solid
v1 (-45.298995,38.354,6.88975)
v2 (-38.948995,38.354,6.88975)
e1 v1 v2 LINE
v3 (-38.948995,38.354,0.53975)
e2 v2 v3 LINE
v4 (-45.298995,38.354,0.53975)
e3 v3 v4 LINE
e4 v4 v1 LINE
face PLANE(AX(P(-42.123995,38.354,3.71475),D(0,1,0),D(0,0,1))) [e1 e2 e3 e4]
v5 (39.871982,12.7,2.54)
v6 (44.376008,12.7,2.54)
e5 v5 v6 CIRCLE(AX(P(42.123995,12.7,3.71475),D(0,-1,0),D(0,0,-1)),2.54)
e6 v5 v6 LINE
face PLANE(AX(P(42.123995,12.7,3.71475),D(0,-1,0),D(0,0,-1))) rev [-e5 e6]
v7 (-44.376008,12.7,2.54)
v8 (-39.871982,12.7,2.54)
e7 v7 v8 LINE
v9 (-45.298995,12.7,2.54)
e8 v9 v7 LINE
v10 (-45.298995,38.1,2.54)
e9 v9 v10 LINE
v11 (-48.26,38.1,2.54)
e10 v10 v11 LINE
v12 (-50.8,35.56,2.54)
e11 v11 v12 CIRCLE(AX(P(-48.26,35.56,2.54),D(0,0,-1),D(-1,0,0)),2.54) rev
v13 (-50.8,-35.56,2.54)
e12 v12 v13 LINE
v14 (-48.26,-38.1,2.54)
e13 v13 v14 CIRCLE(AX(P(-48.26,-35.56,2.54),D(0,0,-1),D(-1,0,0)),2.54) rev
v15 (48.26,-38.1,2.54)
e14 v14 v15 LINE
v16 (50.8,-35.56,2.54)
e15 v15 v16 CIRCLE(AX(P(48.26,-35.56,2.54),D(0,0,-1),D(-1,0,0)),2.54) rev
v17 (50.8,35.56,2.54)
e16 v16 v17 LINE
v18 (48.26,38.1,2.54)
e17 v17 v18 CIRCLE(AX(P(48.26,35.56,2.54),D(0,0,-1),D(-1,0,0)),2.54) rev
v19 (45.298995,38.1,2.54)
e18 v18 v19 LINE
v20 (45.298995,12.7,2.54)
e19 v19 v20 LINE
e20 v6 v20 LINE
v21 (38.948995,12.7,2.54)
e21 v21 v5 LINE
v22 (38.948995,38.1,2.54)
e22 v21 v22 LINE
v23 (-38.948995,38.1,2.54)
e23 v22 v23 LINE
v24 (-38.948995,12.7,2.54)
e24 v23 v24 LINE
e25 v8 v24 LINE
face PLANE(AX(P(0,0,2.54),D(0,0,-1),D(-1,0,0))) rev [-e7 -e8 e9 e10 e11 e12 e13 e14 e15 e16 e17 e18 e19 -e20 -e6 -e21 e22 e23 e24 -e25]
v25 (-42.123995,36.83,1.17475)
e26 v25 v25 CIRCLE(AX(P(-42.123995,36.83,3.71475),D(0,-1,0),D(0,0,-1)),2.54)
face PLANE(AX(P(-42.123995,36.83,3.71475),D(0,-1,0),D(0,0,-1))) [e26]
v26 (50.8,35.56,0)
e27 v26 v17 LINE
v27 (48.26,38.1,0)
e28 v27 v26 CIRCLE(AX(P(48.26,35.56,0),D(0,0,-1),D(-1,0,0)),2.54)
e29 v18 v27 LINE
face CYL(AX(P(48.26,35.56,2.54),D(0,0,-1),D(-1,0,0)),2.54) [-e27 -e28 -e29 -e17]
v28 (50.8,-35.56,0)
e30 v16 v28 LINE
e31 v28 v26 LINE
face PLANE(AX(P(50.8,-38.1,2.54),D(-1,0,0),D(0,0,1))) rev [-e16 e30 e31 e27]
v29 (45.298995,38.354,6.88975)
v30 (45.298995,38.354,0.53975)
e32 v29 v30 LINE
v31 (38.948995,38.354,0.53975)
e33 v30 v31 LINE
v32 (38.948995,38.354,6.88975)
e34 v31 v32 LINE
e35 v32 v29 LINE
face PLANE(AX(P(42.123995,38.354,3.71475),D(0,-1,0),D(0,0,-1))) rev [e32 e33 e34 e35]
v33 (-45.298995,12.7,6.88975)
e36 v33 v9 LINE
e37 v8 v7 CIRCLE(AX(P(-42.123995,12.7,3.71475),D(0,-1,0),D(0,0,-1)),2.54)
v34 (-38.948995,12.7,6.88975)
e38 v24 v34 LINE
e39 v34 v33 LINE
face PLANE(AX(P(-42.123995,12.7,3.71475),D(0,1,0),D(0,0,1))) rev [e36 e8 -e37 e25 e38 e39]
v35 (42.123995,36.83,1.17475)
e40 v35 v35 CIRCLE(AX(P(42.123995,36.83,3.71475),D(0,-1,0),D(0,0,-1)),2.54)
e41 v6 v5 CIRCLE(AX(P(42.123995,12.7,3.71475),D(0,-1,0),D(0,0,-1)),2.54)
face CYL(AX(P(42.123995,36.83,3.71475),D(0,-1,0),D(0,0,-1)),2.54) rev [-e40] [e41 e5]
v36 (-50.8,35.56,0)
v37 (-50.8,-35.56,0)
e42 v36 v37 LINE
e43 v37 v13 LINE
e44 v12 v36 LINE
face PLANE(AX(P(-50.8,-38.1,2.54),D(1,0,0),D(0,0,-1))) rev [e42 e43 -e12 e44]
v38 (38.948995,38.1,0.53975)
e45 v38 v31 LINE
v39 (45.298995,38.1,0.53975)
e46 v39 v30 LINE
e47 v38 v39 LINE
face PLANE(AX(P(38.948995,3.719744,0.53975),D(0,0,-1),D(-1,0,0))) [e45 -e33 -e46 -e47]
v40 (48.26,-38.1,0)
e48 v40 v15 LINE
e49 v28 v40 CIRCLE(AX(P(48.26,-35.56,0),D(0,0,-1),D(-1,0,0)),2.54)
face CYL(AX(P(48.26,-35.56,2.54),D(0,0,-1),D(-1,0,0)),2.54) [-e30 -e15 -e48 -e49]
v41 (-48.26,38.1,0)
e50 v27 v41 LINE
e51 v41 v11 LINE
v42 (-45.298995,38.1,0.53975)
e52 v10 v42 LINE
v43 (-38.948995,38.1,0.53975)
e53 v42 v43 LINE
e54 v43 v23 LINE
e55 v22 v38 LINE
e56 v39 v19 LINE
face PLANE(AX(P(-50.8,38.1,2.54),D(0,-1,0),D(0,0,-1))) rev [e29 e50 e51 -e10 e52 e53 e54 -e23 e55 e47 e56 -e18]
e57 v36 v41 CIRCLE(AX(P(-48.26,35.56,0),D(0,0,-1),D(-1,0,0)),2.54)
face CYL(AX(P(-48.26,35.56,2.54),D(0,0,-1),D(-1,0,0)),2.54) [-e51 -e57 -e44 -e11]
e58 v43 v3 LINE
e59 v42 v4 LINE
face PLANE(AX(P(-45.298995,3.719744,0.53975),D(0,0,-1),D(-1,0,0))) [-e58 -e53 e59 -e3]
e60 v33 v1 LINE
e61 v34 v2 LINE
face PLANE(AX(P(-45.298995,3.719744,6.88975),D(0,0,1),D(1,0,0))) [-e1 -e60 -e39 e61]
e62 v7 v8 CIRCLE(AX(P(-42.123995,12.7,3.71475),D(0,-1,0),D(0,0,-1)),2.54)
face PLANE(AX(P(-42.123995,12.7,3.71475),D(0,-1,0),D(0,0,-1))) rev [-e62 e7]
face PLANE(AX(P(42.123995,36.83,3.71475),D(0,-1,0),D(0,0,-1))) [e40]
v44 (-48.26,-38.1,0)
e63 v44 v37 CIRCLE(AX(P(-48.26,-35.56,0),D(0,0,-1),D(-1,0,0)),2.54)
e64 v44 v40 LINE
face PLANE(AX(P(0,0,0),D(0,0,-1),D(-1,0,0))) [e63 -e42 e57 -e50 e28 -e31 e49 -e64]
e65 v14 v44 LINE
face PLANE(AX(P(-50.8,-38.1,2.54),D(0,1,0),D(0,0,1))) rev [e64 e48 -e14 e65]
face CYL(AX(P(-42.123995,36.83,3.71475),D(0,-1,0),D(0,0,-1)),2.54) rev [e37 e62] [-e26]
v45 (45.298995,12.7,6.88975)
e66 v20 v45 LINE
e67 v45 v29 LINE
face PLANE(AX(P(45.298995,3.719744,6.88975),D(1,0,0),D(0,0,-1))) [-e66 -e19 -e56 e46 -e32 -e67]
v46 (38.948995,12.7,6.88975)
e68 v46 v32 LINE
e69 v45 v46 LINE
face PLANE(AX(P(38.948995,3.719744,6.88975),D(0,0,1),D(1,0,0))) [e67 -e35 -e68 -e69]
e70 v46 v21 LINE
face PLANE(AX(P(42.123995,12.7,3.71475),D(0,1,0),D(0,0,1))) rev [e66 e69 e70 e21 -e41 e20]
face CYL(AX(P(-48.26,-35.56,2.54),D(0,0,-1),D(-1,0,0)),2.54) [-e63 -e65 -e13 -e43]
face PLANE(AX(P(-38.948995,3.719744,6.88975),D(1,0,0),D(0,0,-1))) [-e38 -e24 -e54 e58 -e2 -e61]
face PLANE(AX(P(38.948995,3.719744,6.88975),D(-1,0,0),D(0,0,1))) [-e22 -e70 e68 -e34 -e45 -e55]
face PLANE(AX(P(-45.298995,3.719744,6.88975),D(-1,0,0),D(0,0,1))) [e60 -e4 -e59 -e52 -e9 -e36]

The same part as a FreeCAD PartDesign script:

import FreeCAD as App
import Part
import Sketcher
from FreeCAD import Vector
Q = App.Units.Quantity


def edges_at(feature, points):
    """Names of the edges that pass closest to the given points."""
    edges = feature.Shape.Edges
    near = lambda p: min(range(len(edges)), key=lambda i: edges[i].distToShape(Part.Vertex(*p))[0])
    return sorted({f"Edge{near(p) + 1}" for p in points})

doc = App.newDocument("Part")
body = doc.addObject("PartDesign::Body", "Body")

# Sketch on XY plane
sketch1 = doc.addObject("Sketcher::SketchObject", "Sketch")
body.addObject(sketch1)
sketch1.AttachmentSupport = (doc.XY_Plane, [""])
sketch1.MapMode = "FlatFace"
sketch1.addGeometry(Part.LineSegment(Vector(-51, 38, 0), Vector(-51, -38, 0)), False)
sketch1.addGeometry(Part.LineSegment(Vector(-51, -38, 0), Vector(51, -38, 0)), False)
sketch1.addGeometry(Part.LineSegment(Vector(51, -38, 0), Vector(51, 38, 0)), False)
sketch1.addGeometry(Part.LineSegment(Vector(51, 38, 0), Vector(-51, 38, 0)), False)
sketch1.addConstraint(Sketcher.Constraint("Coincident", 0, 2, 1, 1))
sketch1.addConstraint(Sketcher.Constraint("Coincident", 1, 2, 2, 1))
sketch1.addConstraint(Sketcher.Constraint("Coincident", 2, 2, 3, 1))
sketch1.addConstraint(Sketcher.Constraint("Coincident", 3, 2, 0, 1))
sketch1.addConstraint(Sketcher.Constraint("Vertical", 0))
sketch1.addConstraint(Sketcher.Constraint("Horizontal", 1))
sketch1.addConstraint(Sketcher.Constraint("Vertical", 2))
sketch1.addConstraint(Sketcher.Constraint("Horizontal", 3))
sketch1.addConstraint(Sketcher.Constraint("Symmetric", 0, 2, 2, 2, -1, 1))
sketch1.addConstraint(Sketcher.Constraint("DistanceX", 1, 1, 1, 2, Q("4 in")))
sketch1.addConstraint(Sketcher.Constraint("DistanceY", 0, 2, 0, 1, Q("3 in")))
pad1 = doc.addObject("PartDesign::Pad", "Pad")
body.addObject(pad1)
pad1.Profile = sketch1
pad1.Length = Q("0.1 in")

# Sketch on XZ plane
sketch2 = doc.addObject("Sketcher::SketchObject", "Sketch001")
body.addObject(sketch2)
sketch2.AttachmentSupport = (doc.XZ_Plane, [""])
sketch2.MapMode = "FlatFace"
sketch2.AttachmentOffset = App.Placement(Vector(0, 0, -1.5 * 25.4), App.Rotation())
sketch2.addGeometry(Part.Circle(Vector(-42.1, 3.7, 0), Vector(0, 0, 1), 1.6), False)
sketch2.addGeometry(Part.Circle(Vector(-42.1, 3.7, 0), Vector(0, 0, 1), 1.3), False)
sketch2.addGeometry(Part.Circle(Vector(42.1, 3.7, 0), Vector(0, 0, 1), 1.6), False)
sketch2.addGeometry(Part.Circle(Vector(42.1, 3.7, 0), Vector(0, 0, 1), 1.3), False)
sketch2.addConstraint(Sketcher.Constraint("Coincident", 1, 3, 0, 3))
sketch2.addConstraint(Sketcher.Constraint("Coincident", 3, 3, 2, 3))
sketch2.addConstraint(Sketcher.Constraint("Equal", 0, 2))
sketch2.addConstraint(Sketcher.Constraint("Equal", 1, 3))
sketch2.addConstraint(Sketcher.Constraint("Symmetric", 0, 3, 2, 3, -2))
sketch2.addConstraint(Sketcher.Constraint("Diameter", 0, Q("0.125 in")))
sketch2.addConstraint(Sketcher.Constraint("Diameter", 1, Q("0.105 in")))
sketch2.addConstraint(Sketcher.Constraint("DistanceY", -1, 1, 0, 3, Q("3.71475 mm")))
sketch2.addConstraint(Sketcher.Constraint("DistanceX", 0, 3, 2, 3, Q("84.24799 mm")))
pad2 = doc.addObject("PartDesign::Pad", "Pad001")
body.addObject(pad2)
pad2.Profile = sketch2
pad2.Length = Q("1 in")

# Sketch on XZ plane
sketch3 = doc.addObject("Sketcher::SketchObject", "Sketch002")
body.addObject(sketch3)
sketch3.AttachmentSupport = (doc.XZ_Plane, [""])
sketch3.MapMode = "FlatFace"
sketch3.AttachmentOffset = App.Placement(Vector(0, 0, -1.51 * 25.4), App.Rotation())
sketch3.addGeometry(Part.Circle(Vector(-42.1, 3.7, 0), Vector(0, 0, 1), 1.6), False)
sketch3.addGeometry(Part.Circle(Vector(42.1, 3.7, 0), Vector(0, 0, 1), 1.6), False)
sketch3.addConstraint(Sketcher.Constraint("Equal", 0, 1))
sketch3.addConstraint(Sketcher.Constraint("Symmetric", 0, 3, 1, 3, -2))
sketch3.addConstraint(Sketcher.Constraint("Diameter", 0, Q("0.125 in")))
sketch3.addConstraint(Sketcher.Constraint("DistanceY", -1, 1, 0, 3, Q("3.71475 mm")))
sketch3.addConstraint(Sketcher.Constraint("DistanceX", 0, 3, 1, 3, Q("84.24799 mm")))
pad3 = doc.addObject("PartDesign::Pad", "Pad002")
body.addObject(pad3)
pad3.Profile = sketch3
pad3.Length = Q("0.01 in")
doc.recompute()

fillet = doc.addObject("PartDesign::Fillet", "Fillet")
body.addObject(fillet)
fillet.Base = (pad3, edges_at(pad3, [
    (50.8, -38.1, 1.27),
    (-50.8, -38.1, 1.27),
    (-50.8, 38.1, 1.27),
    (50.8, 38.1, 1.27),
]))
fillet.Radius = Q("0.1 in")

# Sketch on XZ plane
sketch4 = doc.addObject("Sketcher::SketchObject", "Sketch003")
body.addObject(sketch4)
sketch4.AttachmentSupport = (doc.XZ_Plane, [""])
sketch4.MapMode = "FlatFace"
sketch4.AttachmentOffset = App.Placement(Vector(0, 0, -0.5 * 25.4), App.Rotation())
sketch4.addGeometry(Part.LineSegment(Vector(-45, 1, 0), Vector(-45, 7, 0)), False)
sketch4.addGeometry(Part.LineSegment(Vector(-45, 7, 0), Vector(-39, 7, 0)), False)
sketch4.addGeometry(Part.LineSegment(Vector(-39, 7, 0), Vector(-39, 1, 0)), False)
sketch4.addGeometry(Part.LineSegment(Vector(-39, 1, 0), Vector(-45, 1, 0)), False)
sketch4.addGeometry(Part.LineSegment(Vector(39, 1, 0), Vector(39, 7, 0)), False)
sketch4.addGeometry(Part.LineSegment(Vector(39, 7, 0), Vector(45, 7, 0)), False)
sketch4.addGeometry(Part.LineSegment(Vector(45, 7, 0), Vector(45, 1, 0)), False)
sketch4.addGeometry(Part.LineSegment(Vector(45, 1, 0), Vector(39, 1, 0)), False)
sketch4.addConstraint(Sketcher.Constraint("Coincident", 0, 2, 1, 1))
sketch4.addConstraint(Sketcher.Constraint("Coincident", 1, 2, 2, 1))
sketch4.addConstraint(Sketcher.Constraint("Coincident", 2, 2, 3, 1))
sketch4.addConstraint(Sketcher.Constraint("Coincident", 3, 2, 0, 1))
sketch4.addConstraint(Sketcher.Constraint("Coincident", 4, 2, 5, 1))
sketch4.addConstraint(Sketcher.Constraint("Coincident", 5, 2, 6, 1))
sketch4.addConstraint(Sketcher.Constraint("Coincident", 6, 2, 7, 1))
sketch4.addConstraint(Sketcher.Constraint("Coincident", 7, 2, 4, 1))
sketch4.addConstraint(Sketcher.Constraint("Vertical", 0))
sketch4.addConstraint(Sketcher.Constraint("Horizontal", 1))
sketch4.addConstraint(Sketcher.Constraint("Vertical", 2))
sketch4.addConstraint(Sketcher.Constraint("Horizontal", 3))
sketch4.addConstraint(Sketcher.Constraint("Vertical", 4))
sketch4.addConstraint(Sketcher.Constraint("Horizontal", 5))
sketch4.addConstraint(Sketcher.Constraint("Vertical", 6))
sketch4.addConstraint(Sketcher.Constraint("Horizontal", 7))
sketch4.addConstraint(Sketcher.Constraint("Symmetric", 1, 2, 4, 2, -2))
sketch4.addConstraint(Sketcher.Constraint("Symmetric", 3, 2, 6, 2, -2))
sketch4.addConstraint(Sketcher.Constraint("Equal", 7, 0))
sketch4.addConstraint(Sketcher.Constraint("DistanceX", 1, 1, 1, 2, Q("0.25 in")))
sketch4.addConstraint(Sketcher.Constraint("DistanceY", -1, 1, 0, 2, Q("6.88975 mm")))
sketch4.addConstraint(Sketcher.Constraint("DistanceX", 1, 2, 4, 2, Q("77.89799 mm")))
pad4 = doc.addObject("PartDesign::Pad", "Pad003")
body.addObject(pad4)
pad4.Profile = sketch4
pad4.Length = Q("1.01 in")
pad4.Reversed = True

# Sketch on XZ plane
sketch5 = doc.addObject("Sketcher::SketchObject", "Sketch004")
body.addObject(sketch5)
sketch5.AttachmentSupport = (doc.XZ_Plane, [""])
sketch5.MapMode = "FlatFace"
sketch5.AttachmentOffset = App.Placement(Vector(0, 0, -0.5 * 25.4), App.Rotation())
sketch5.addGeometry(Part.Circle(Vector(-42.1, 3.7, 0), Vector(0, 0, 1), 2.5), False)
sketch5.addGeometry(Part.Circle(Vector(42.1, 3.7, 0), Vector(0, 0, 1), 2.5), False)
sketch5.addConstraint(Sketcher.Constraint("Equal", 0, 1))
sketch5.addConstraint(Sketcher.Constraint("Symmetric", 0, 3, 1, 3, -2))
sketch5.addConstraint(Sketcher.Constraint("Diameter", 0, Q("0.2 in")))
sketch5.addConstraint(Sketcher.Constraint("DistanceY", -1, 1, 0, 3, Q("3.71475 mm")))
sketch5.addConstraint(Sketcher.Constraint("DistanceX", 0, 3, 1, 3, Q("84.24799 mm")))
pocket1 = doc.addObject("PartDesign::Pocket", "Pocket")
body.addObject(pocket1)
pocket1.Profile = sketch5
pocket1.Length = Q("0.95 in")

doc.recompute()
